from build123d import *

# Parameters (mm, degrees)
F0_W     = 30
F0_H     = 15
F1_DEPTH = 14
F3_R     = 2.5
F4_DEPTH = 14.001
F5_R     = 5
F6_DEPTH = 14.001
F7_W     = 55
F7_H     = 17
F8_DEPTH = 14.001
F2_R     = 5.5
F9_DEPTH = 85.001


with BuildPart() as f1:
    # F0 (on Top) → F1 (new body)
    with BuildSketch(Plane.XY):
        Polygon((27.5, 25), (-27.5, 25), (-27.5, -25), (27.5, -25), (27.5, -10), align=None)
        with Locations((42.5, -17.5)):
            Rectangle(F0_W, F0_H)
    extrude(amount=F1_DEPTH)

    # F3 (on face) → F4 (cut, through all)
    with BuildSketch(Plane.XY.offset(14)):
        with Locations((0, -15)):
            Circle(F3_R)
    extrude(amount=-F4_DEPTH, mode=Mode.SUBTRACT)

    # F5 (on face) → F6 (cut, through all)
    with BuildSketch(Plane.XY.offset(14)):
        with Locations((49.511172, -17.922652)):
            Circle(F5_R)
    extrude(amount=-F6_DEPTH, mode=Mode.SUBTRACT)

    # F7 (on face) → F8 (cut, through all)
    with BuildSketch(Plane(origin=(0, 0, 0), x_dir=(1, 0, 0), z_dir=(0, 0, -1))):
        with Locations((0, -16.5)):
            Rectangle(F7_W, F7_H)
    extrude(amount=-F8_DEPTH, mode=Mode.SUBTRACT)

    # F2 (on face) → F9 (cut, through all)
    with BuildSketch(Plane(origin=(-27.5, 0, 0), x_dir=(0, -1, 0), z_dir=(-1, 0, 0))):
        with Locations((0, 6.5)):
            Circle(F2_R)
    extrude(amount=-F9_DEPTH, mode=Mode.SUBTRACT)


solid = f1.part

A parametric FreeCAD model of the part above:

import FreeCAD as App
import Part
import Sketcher


def add_polygon(sketch, points):
    """Adds a closed chain of lines whose ends are joined by coincident constraints."""
    first, n = sketch.GeometryCount, len(points)
    for a, b in zip(points, points[1:] + points[:1]):
        sketch.addGeometry(Part.LineSegment(App.Vector(*a, 0), App.Vector(*b, 0)), False)
    for i in range(n):
        sketch.addConstraint(Sketcher.Constraint("Coincident", first + i, 2, first + (i + 1) % n, 1))

doc = App.newDocument("Part")
body = doc.addObject("PartDesign::Body", "Body")

# Sketch on XY plane
sketch1 = body.newObject("Sketcher::SketchObject", "Sketch")
sketch1.AttachmentSupport = (doc.getObject("XY_Plane"), [""])
sketch1.MapMode = "FlatFace"
add_polygon(sketch1, [(28, 25), (-28, 25), (-28, -25), (58, -25), (58, -10), (28, -10)])  # lines 0-5
sketch1.addConstraint([
    Sketcher.Constraint("Horizontal", 0),
    Sketcher.Constraint("Vertical", 1),
    Sketcher.Constraint("Horizontal", 2),
    Sketcher.Constraint("Vertical", 3),
    Sketcher.Constraint("Horizontal", 4),
    Sketcher.Constraint("Vertical", 5),
    Sketcher.Constraint("Symmetric", 1, 2, 5, 2, -1, 1),
    Sketcher.Constraint("DistanceX", 0, 2, 0, 1, 55.0),
    Sketcher.Constraint("DistanceX", 2, 1, 2, 2, 85.0),
    Sketcher.Constraint("DistanceY", 1, 2, 1, 1, 50.0),
    Sketcher.Constraint("DistanceY", 3, 1, 3, 2, 15.0),
])
pad1 = body.newObject("PartDesign::Pad", "Pad")
pad1.Profile = sketch1
pad1.Length = 14

# Sketch on XY plane
sketch2 = body.newObject("Sketcher::SketchObject", "Sketch001")
sketch2.AttachmentSupport = (doc.getObject("XY_Plane"), [""])
sketch2.MapMode = "FlatFace"
sketch2.AttachmentOffset = App.Placement(App.Vector(0, 0, 14), App.Rotation())
sketch2.addGeometry(Part.Circle(App.Vector(0, -15, 0), App.Vector(0, 0, 1), 2.5), False)
sketch2.addConstraint([
    Sketcher.Constraint("PointOnObject", 0, 3, -2),
    Sketcher.Constraint("Diameter", 0, 5.0),
    Sketcher.Constraint("DistanceY", 0, 3, -1, 1, 15.0),
])
pocket1 = body.newObject("PartDesign::Pocket", "Pocket")
pocket1.Profile = sketch2
pocket1.Type = "ThroughAll"

# Sketch on XY plane
sketch3 = body.newObject("Sketcher::SketchObject", "Sketch002")
sketch3.AttachmentSupport = (doc.getObject("XY_Plane"), [""])
sketch3.MapMode = "FlatFace"
sketch3.AttachmentOffset = App.Placement(App.Vector(0, 0, 14), App.Rotation())
sketch3.addGeometry(Part.Circle(App.Vector(50, -18, 0), App.Vector(0, 0, 1), 5), False)
sketch3.addConstraint([
    Sketcher.Constraint("Diameter", 0, 10.0),
    Sketcher.Constraint("DistanceY", 0, 3, -1, 1, 17.922652),
    Sketcher.Constraint("DistanceX", -1, 1, 0, 3, 49.511172),
])
pocket2 = body.newObject("PartDesign::Pocket", "Pocket001")
pocket2.Profile = sketch3
pocket2.Type = "ThroughAll"

# Sketch on XY plane
sketch4 = body.newObject("Sketcher::SketchObject", "Sketch003")
sketch4.AttachmentSupport = (doc.getObject("XY_Plane"), [""])
sketch4.MapMode = "FlatFace"
add_polygon(sketch4, [(-28, 8), (-28, 25), (28, 25), (28, 8)])  # lines 0-3
sketch4.addConstraint([
    Sketcher.Constraint("Vertical", 0),
    Sketcher.Constraint("Horizontal", 1),
    Sketcher.Constraint("Vertical", 2),
    Sketcher.Constraint("Horizontal", 3),
    Sketcher.Constraint("DistanceX", 1, 1, 1, 2, 55.0),
    Sketcher.Constraint("DistanceY", 0, 1, 0, 2, 17.0),
    Sketcher.Constraint("DistanceY", -1, 1, 0, 2, 25.0),
    Sketcher.Constraint("DistanceX", 0, 2, -1, 1, 27.5),
])
pocket3 = body.newObject("PartDesign::Pocket", "Pocket002")
pocket3.Profile = sketch4
pocket3.Type = "ThroughAll"
pocket3.Reversed = True

# Sketch on YZ plane
sketch5 = body.newObject("Sketcher::SketchObject", "Sketch004")
sketch5.AttachmentSupport = (doc.getObject("YZ_Plane"), [""])
sketch5.MapMode = "FlatFace"
sketch5.AttachmentOffset = App.Placement(App.Vector(0, 0, -27.5), App.Rotation())
sketch5.addGeometry(Part.Circle(App.Vector(0, 6, 0), App.Vector(0, 0, 1), 6), False)
sketch5.addConstraint([
    Sketcher.Constraint("PointOnObject", 0, 3, -2),
    Sketcher.Constraint("Diameter", 0, 11.0),
    Sketcher.Constraint("DistanceY", -1, 1, 0, 3, 6.5),
])
pocket4 = body.newObject("PartDesign::Pocket", "Pocket003")
pocket4.Profile = sketch5
pocket4.Type = "ThroughAll"
pocket4.Reversed = True

doc.recompute()
